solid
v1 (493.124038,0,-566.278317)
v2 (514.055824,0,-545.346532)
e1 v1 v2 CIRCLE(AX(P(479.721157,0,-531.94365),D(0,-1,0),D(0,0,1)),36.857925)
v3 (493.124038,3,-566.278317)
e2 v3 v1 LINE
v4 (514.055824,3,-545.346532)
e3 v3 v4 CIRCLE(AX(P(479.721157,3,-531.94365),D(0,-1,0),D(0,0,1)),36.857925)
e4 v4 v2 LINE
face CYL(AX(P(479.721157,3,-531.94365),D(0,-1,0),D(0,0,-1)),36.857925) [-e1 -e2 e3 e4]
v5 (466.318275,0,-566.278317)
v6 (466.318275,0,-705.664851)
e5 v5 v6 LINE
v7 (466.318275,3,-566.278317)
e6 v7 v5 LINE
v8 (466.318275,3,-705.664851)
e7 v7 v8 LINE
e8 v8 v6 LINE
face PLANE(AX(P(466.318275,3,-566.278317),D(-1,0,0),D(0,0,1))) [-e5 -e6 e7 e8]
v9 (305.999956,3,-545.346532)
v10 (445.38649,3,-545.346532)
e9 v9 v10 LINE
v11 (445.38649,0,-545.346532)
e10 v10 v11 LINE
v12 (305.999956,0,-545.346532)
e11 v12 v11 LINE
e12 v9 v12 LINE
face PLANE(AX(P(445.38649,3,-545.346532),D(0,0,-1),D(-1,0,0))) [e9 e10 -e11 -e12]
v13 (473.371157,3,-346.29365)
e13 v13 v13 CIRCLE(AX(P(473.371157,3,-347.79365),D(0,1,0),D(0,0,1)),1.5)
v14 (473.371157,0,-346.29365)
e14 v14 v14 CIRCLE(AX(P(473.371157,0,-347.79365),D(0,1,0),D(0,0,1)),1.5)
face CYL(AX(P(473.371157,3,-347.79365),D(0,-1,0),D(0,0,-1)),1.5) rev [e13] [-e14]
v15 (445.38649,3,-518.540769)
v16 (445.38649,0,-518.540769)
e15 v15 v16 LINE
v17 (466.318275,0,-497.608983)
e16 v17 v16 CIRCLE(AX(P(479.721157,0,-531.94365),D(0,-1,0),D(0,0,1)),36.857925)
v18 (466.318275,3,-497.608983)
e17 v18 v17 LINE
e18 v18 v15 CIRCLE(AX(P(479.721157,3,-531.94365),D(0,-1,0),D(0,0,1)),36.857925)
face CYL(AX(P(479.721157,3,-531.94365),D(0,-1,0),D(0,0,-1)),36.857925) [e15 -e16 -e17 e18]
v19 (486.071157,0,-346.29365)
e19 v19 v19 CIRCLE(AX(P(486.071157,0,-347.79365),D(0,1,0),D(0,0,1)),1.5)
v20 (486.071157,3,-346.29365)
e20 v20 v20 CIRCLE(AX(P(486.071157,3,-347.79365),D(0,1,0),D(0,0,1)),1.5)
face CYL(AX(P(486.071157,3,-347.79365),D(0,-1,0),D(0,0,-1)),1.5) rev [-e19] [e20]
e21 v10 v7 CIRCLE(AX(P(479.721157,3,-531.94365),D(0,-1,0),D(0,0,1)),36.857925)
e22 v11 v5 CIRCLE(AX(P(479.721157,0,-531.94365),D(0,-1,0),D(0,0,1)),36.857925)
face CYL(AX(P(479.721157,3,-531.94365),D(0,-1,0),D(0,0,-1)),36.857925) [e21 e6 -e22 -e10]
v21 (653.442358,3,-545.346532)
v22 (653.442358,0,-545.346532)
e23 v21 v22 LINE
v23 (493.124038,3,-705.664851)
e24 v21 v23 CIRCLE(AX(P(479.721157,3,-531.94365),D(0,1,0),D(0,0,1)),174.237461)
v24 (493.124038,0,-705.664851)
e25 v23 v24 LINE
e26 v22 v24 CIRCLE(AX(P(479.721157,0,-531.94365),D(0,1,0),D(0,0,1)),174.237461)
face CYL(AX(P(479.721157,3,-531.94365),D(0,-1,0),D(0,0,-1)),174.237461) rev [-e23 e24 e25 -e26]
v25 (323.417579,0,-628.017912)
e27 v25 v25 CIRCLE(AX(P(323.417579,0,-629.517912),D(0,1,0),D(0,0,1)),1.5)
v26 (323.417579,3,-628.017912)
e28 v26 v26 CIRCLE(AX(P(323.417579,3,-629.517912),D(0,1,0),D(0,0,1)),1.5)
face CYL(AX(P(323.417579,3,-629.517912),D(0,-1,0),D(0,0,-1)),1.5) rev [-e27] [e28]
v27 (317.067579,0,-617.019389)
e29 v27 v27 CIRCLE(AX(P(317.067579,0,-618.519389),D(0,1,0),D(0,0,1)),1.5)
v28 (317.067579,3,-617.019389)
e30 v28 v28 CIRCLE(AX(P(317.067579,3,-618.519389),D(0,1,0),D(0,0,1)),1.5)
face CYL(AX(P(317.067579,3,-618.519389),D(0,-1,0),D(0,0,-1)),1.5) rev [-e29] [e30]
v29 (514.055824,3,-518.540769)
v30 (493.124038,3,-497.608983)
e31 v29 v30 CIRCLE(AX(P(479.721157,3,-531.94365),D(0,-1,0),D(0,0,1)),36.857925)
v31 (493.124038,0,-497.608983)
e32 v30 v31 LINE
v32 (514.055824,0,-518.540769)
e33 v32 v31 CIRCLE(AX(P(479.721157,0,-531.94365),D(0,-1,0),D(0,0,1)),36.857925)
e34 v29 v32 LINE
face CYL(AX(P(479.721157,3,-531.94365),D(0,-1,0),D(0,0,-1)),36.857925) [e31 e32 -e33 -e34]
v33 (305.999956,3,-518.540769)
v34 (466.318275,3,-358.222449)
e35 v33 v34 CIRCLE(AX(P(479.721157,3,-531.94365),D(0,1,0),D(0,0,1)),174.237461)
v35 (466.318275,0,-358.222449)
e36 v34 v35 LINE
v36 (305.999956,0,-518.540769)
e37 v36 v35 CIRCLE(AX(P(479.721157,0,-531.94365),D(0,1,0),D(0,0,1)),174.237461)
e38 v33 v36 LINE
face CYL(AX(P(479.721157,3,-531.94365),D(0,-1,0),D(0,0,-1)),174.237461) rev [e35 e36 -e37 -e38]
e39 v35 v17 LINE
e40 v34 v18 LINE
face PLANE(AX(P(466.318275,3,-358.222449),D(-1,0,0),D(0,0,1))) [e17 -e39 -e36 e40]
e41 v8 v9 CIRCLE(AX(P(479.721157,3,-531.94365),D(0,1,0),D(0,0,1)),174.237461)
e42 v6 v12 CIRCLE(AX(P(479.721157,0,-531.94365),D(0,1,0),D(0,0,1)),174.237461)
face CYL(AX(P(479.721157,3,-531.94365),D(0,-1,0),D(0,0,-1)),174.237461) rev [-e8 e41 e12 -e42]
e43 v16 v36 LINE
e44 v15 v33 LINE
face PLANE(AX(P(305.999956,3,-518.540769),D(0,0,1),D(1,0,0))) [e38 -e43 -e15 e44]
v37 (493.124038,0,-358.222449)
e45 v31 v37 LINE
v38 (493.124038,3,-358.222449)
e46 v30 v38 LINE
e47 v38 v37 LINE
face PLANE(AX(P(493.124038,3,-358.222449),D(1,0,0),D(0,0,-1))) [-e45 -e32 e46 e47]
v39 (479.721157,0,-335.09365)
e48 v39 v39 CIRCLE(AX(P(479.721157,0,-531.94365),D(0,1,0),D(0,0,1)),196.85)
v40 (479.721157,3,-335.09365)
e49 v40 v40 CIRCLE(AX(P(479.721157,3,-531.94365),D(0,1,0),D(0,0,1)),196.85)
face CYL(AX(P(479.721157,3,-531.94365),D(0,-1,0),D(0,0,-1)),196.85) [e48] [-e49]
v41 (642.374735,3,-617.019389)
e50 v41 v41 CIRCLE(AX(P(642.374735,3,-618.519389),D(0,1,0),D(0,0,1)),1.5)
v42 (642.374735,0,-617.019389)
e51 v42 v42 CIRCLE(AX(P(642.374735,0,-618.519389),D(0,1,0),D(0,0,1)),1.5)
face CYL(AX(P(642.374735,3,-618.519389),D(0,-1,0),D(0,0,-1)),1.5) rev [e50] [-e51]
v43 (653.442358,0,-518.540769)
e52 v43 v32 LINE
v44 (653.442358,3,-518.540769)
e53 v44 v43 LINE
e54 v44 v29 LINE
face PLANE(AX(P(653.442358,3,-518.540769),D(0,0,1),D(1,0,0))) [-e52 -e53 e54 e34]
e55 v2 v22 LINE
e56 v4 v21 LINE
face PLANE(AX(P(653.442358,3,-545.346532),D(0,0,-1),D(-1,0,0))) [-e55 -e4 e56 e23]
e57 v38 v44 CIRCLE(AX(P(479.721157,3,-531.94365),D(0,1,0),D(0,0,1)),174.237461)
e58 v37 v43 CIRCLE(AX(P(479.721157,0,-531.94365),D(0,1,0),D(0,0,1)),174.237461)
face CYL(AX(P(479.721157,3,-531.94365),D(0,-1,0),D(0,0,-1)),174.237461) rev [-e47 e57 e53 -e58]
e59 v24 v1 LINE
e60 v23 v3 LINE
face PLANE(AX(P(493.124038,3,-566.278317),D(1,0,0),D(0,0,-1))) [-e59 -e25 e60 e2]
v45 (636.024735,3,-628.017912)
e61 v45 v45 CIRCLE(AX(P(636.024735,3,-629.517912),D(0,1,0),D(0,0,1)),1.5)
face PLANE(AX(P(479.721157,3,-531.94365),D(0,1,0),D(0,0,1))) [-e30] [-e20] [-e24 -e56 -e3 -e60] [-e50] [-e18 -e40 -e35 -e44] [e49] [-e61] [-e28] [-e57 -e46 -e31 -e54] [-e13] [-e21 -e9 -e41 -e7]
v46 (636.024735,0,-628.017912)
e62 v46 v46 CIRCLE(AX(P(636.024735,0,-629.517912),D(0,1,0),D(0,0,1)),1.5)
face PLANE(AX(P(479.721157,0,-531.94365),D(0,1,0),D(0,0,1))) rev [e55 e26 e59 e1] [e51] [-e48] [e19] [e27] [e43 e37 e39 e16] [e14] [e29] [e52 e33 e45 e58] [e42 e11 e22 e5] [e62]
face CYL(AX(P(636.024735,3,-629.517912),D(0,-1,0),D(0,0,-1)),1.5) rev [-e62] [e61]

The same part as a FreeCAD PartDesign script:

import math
import FreeCAD as App
import Part
import Sketcher
from FreeCAD import Vector
Q = App.Units.Quantity

doc = App.newDocument("Part")
body = doc.addObject("PartDesign::Body", "Body")

# Sketch on XZ plane
sketch1 = body.newObject("Sketcher::SketchObject", "Sketch")
sketch1.AttachmentSupport = (doc.getObject("XZ_Plane"), [""])
sketch1.MapMode = "FlatFace"
sketch1.addGeometry([
    Part.Circle(Vector(479.7, -531.9, 0), Vector(0, 0, 1), 196.8),  # 0
    Part.Circle(Vector(323.4, -629.5, 0), Vector(0, 0, 1), 1.5),  # 1
    Part.Circle(Vector(317.1, -618.5, 0), Vector(0, 0, 1), 1.5),  # 2
    Part.ArcOfCircle(Part.Circle(Vector(479.7, -531.9, 0), Vector(0, 0, 1), 36.9), math.radians(-159), math.radians(-111)),  # 3
    Part.LineSegment(Vector(445.4, -545.3, 0), Vector(306, -545.3, 0)),  # 4
    Part.ArcOfCircle(Part.Circle(Vector(479.7, -531.9, 0), Vector(0, 0, 1), 174.2), math.radians(-176), math.radians(-94)),  # 5
    Part.LineSegment(Vector(466.3, -705.7, 0), Vector(466.3, -566.3, 0)),  # 6
    Part.ArcOfCircle(Part.Circle(Vector(479.7, -531.9, 0), Vector(0, 0, 1), 174.2), math.radians(94), math.radians(176)),  # 7
    Part.LineSegment(Vector(306, -518.5, 0), Vector(445.4, -518.5, 0)),  # 8
    Part.ArcOfCircle(Part.Circle(Vector(479.7, -531.9, 0), Vector(0, 0, 1), 36.9), math.radians(111), math.radians(159)),  # 9
    Part.LineSegment(Vector(466.3, -497.6, 0), Vector(466.3, -358.2, 0)),  # 10
    Part.Circle(Vector(473.4, -347.8, 0), Vector(0, 0, 1), 1.5),  # 11
    Part.ArcOfCircle(Part.Circle(Vector(479.7, -531.9, 0), Vector(0, 0, 1), 174.2), math.radians(-86), math.radians(-4)),  # 12
    Part.LineSegment(Vector(653.4, -545.3, 0), Vector(514.1, -545.3, 0)),  # 13
    Part.ArcOfCircle(Part.Circle(Vector(479.7, -531.9, 0), Vector(0, 0, 1), 36.9), math.radians(-69), math.radians(-21)),  # 14
    Part.LineSegment(Vector(493.1, -566.3, 0), Vector(493.1, -705.7, 0)),  # 15
    Part.Circle(Vector(636, -629.5, 0), Vector(0, 0, 1), 1.5),  # 16
    Part.Circle(Vector(642.4, -618.5, 0), Vector(0, 0, 1), 1.5),  # 17
    Part.Circle(Vector(486.1, -347.8, 0), Vector(0, 0, 1), 1.5),  # 18
    Part.LineSegment(Vector(514.1, -518.5, 0), Vector(653.4, -518.5, 0)),  # 19
    Part.ArcOfCircle(Part.Circle(Vector(479.7, -531.9, 0), Vector(0, 0, 1), 174.2), math.radians(4), math.radians(86)),  # 20
    Part.LineSegment(Vector(493.1, -358.2, 0), Vector(493.1, -497.6, 0)),  # 21
    Part.ArcOfCircle(Part.Circle(Vector(479.7, -531.9, 0), Vector(0, 0, 1), 36.9), math.radians(21), math.radians(69)),  # 22
], False)
sketch1.addConstraint([
    Sketcher.Constraint("Coincident", 3, 1, 4, 1),
    Sketcher.Constraint("Coincident", 4, 2, 5, 1),
    Sketcher.Constraint("Coincident", 5, 2, 6, 1),
    Sketcher.Constraint("Coincident", 6, 2, 3, 2),
    Sketcher.Constraint("Coincident", 7, 2, 8, 1),
    Sketcher.Constraint("Coincident", 8, 2, 9, 2),
    Sketcher.Constraint("Coincident", 9, 1, 10, 1),
    Sketcher.Constraint("Coincident", 10, 2, 7, 1),
    Sketcher.Constraint("Coincident", 12, 2, 13, 1),
    Sketcher.Constraint("Coincident", 13, 2, 14, 2),
    Sketcher.Constraint("Coincident", 14, 1, 15, 1),
    Sketcher.Constraint("Coincident", 15, 2, 12, 1),
    Sketcher.Constraint("Coincident", 19, 2, 20, 1),
    Sketcher.Constraint("Coincident", 20, 2, 21, 1),
    Sketcher.Constraint("Coincident", 21, 2, 22, 2),
    Sketcher.Constraint("Coincident", 22, 1, 19, 1),
    Sketcher.Constraint("Horizontal", 4),
    Sketcher.Constraint("Vertical", 6),
    Sketcher.Constraint("Horizontal", 8),
    Sketcher.Constraint("Vertical", 10),
    Sketcher.Constraint("Horizontal", 13),
    Sketcher.Constraint("Vertical", 15),
    Sketcher.Constraint("Horizontal", 19),
    Sketcher.Constraint("Vertical", 21),
    Sketcher.Constraint("Coincident", 3, 3, 0, 3),
    Sketcher.Constraint("Coincident", 5, 3, 0, 3),
    Sketcher.Constraint("Coincident", 7, 3, 0, 3),
    Sketcher.Constraint("Coincident", 9, 3, 0, 3),
    Sketcher.Constraint("Coincident", 12, 3, 0, 3),
    Sketcher.Constraint("Coincident", 14, 3, 0, 3),
    Sketcher.Constraint("Coincident", 20, 3, 0, 3),
    Sketcher.Constraint("Coincident", 22, 3, 0, 3),
    Sketcher.Constraint("Equal", 1, 2),
    Sketcher.Constraint("Equal", 5, 7),
    Sketcher.Constraint("Equal", 3, 9),
    Sketcher.Constraint("Equal", 2, 11),
    Sketcher.Constraint("Equal", 7, 12),
    Sketcher.Constraint("Equal", 9, 14),
    Sketcher.Constraint("Equal", 11, 16),
    Sketcher.Constraint("Equal", 16, 17),
    Sketcher.Constraint("Equal", 17, 18),
    Sketcher.Constraint("Equal", 12, 20),
    Sketcher.Constraint("Equal", 14, 22),
    Sketcher.Constraint("Horizontal", 1, 3, 16, 3),
    Sketcher.Constraint("Horizontal", 2, 3, 17, 3),
    Sketcher.Constraint("Horizontal", 11, 3, 18, 3),
    Sketcher.Constraint("Horizontal", 4, 2, 12, 2),
    Sketcher.Constraint("Horizontal", 6, 2, 14, 1),
    Sketcher.Constraint("Horizontal", 8, 2, 19, 2),
    Sketcher.Constraint("Horizontal", 10, 2, 20, 2),
    Sketcher.Constraint("Vertical", 4, 2, 7, 2),
    Sketcher.Constraint("Vertical", 6, 2, 9, 1),
    Sketcher.Constraint("Equal", 19, 6),
    Sketcher.Constraint("Diameter", 1, Q("3 mm")),
    Sketcher.Constraint("Diameter", 0, Q("393.7 mm")),
    Sketcher.Constraint("DistanceX", 11, 3, 18, 3, Q("12.7 mm")),
    Sketcher.Constraint("Radius", 5, Q("174.237461 mm")),
    Sketcher.Constraint("DistanceX", 2, 3, 1, 3, Q("6.35 mm")),
    Sketcher.Constraint("DistanceX", 11, 3, 5, 3, Q("6.35 mm")),
    Sketcher.Constraint("DistanceY", 5, 3, 11, 3, Q("184.15 mm")),
    Sketcher.Constraint("DistanceX", 16, 3, 17, 3, Q("6.35 mm")),
    Sketcher.Constraint("Radius", 3, Q("36.857925 mm")),
    Sketcher.Constraint("DistanceX", 4, 2, 0, 3, Q("173.721201 mm")),
    Sketcher.Constraint("DistanceY", 0, 3, -1, 1, Q("531.94365 mm")),
    Sketcher.Constraint("DistanceX", -1, 1, 1, 3, Q("323.417579 mm")),
    Sketcher.Constraint("DistanceY", 1, 3, -1, 1, Q("629.517912 mm")),
    Sketcher.Constraint("DistanceY", 2, 3, -1, 1, Q("618.519389 mm")),
    Sketcher.Constraint("DistanceX", -1, 1, 3, 1, Q("445.38649 mm")),
    Sketcher.Constraint("DistanceX", 5, 3, 16, 3, Q("156.303578 mm")),
])
pad1 = body.newObject("PartDesign::Pad", "Pad")
pad1.Profile = sketch1
pad1.Length = 3
pad1.Reversed = True

doc.recompute()
